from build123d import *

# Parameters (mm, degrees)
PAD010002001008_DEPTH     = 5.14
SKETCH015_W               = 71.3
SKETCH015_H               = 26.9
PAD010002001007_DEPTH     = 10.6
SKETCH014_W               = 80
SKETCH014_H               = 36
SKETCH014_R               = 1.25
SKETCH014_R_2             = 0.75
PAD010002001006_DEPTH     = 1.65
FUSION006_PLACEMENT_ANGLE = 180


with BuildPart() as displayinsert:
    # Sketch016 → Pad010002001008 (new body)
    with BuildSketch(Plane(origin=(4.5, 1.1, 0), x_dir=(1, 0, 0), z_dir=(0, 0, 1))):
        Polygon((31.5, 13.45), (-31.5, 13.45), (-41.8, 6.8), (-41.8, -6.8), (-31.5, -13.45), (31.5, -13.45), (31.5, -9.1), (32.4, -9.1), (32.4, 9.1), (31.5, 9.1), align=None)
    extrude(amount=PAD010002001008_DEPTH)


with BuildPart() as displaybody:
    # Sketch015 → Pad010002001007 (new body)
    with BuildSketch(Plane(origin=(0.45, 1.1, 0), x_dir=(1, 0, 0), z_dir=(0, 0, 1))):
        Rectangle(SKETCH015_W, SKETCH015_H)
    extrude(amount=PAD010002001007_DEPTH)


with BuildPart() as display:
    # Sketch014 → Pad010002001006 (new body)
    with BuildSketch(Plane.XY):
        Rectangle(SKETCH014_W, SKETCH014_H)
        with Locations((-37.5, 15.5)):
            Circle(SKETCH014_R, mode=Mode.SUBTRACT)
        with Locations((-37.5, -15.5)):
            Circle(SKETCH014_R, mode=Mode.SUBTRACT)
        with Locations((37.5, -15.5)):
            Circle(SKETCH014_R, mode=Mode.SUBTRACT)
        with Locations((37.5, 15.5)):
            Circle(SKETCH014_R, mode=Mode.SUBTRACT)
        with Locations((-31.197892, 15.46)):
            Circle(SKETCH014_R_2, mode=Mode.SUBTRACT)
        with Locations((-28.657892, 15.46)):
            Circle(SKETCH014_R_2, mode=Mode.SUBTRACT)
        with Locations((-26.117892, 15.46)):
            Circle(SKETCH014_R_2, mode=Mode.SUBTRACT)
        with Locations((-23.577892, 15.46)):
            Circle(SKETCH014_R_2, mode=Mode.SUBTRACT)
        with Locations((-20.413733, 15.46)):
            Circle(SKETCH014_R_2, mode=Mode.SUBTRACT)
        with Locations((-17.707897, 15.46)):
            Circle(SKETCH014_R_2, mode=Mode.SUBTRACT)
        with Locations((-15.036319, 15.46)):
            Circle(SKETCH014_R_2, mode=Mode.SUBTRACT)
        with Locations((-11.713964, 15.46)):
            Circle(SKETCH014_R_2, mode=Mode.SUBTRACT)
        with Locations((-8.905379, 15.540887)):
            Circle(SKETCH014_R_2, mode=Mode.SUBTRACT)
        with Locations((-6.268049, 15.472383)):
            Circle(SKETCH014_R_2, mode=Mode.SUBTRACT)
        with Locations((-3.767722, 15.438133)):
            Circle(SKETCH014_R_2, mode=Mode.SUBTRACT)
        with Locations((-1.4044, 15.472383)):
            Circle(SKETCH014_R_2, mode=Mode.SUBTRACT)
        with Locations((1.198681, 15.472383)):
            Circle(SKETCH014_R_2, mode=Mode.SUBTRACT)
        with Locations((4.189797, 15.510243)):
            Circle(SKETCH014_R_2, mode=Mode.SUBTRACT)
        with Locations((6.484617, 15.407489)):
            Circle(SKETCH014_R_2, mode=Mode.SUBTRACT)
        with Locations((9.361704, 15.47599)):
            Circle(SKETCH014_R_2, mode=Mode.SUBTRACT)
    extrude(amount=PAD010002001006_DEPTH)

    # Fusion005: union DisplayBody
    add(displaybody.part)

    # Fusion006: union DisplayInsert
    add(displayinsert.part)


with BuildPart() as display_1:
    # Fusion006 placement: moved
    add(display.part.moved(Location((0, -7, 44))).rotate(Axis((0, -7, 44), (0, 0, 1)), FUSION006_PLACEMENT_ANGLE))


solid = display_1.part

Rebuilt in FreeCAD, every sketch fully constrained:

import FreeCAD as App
import Part
import Sketcher

V = App.Vector

doc = App.newDocument("Part")
body = doc.addObject("PartDesign::Body", "Body")

sketch1 = body.newObject("Sketcher::SketchObject", "Sketch")
sketch1.AttachmentSupport = (doc.getObject("XY_Plane"), [""])
sketch1.MapMode = "FlatFace"
sketch1.addGeometry(Part.LineSegment(V(36, 14.6, 0), V(-27, 14.6, 0)), False)
sketch1.addGeometry(Part.LineSegment(V(-27, 14.6, 0), V(-37.3, 7.9, 0)), False)
sketch1.addGeometry(Part.LineSegment(V(-37.3, 7.9, 0), V(-37.3, -5.7, 0)), False)
sketch1.addGeometry(Part.LineSegment(V(-37.3, -5.7, 0), V(-27, -12.3, 0)), False)
sketch1.addGeometry(Part.LineSegment(V(-27, -12.3, 0), V(36, -12.3, 0)), False)
sketch1.addGeometry(Part.LineSegment(V(36, -12.3, 0), V(36, -8, 0)), False)
sketch1.addGeometry(Part.LineSegment(V(36, -8, 0), V(36.9, -8, 0)), False)
sketch1.addGeometry(Part.LineSegment(V(36.9, -8, 0), V(36.9, 10.2, 0)), False)
sketch1.addGeometry(Part.LineSegment(V(36.9, 10.2, 0), V(36, 10.2, 0)), False)
sketch1.addGeometry(Part.LineSegment(V(36, 10.2, 0), V(36, 14.6, 0)), False)
sketch1.addConstraint(Sketcher.Constraint("Coincident", 0, 2, 1, 1))
sketch1.addConstraint(Sketcher.Constraint("Coincident", 1, 2, 2, 1))
sketch1.addConstraint(Sketcher.Constraint("Coincident", 2, 2, 3, 1))
sketch1.addConstraint(Sketcher.Constraint("Coincident", 3, 2, 4, 1))
sketch1.addConstraint(Sketcher.Constraint("Coincident", 4, 2, 5, 1))
sketch1.addConstraint(Sketcher.Constraint("Coincident", 5, 2, 6, 1))
sketch1.addConstraint(Sketcher.Constraint("Coincident", 6, 2, 7, 1))
sketch1.addConstraint(Sketcher.Constraint("Coincident", 7, 2, 8, 1))
sketch1.addConstraint(Sketcher.Constraint("Coincident", 8, 2, 9, 1))
sketch1.addConstraint(Sketcher.Constraint("Coincident", 9, 2, 0, 1))
sketch1.addConstraint(Sketcher.Constraint("Horizontal", 0))
sketch1.addConstraint(Sketcher.Constraint("Vertical", 2))
sketch1.addConstraint(Sketcher.Constraint("Horizontal", 4))
sketch1.addConstraint(Sketcher.Constraint("Vertical", 5))
sketch1.addConstraint(Sketcher.Constraint("Horizontal", 6))
sketch1.addConstraint(Sketcher.Constraint("Vertical", 7))
sketch1.addConstraint(Sketcher.Constraint("Horizontal", 8))
sketch1.addConstraint(Sketcher.Constraint("Vertical", 9))
sketch1.addConstraint(Sketcher.Constraint("Vertical", 0, 2, 3, 2))
sketch1.addConstraint(Sketcher.Constraint("Vertical", 5, 2, 8, 2))
sketch1.addConstraint(Sketcher.Constraint("Equal", 5, 9))
sketch1.addConstraint(Sketcher.Constraint("Equal", 1, 3))
sketch1.addConstraint(Sketcher.Constraint("DistanceX", 0, 2, 0, 1, 63.0))
sketch1.addConstraint(Sketcher.Constraint("DistanceX", 6, 1, 6, 2, 0.9))
sketch1.addConstraint(Sketcher.Constraint("DistanceY", 2, 2, 2, 1, 13.6))
sketch1.addConstraint(Sketcher.Constraint("DistanceY", 7, 1, 7, 2, 18.2))
sketch1.addConstraint(Sketcher.Constraint("DistanceX", 0, 2, -1, 1, 27.0))
sketch1.addConstraint(Sketcher.Constraint("DistanceY", 5, 2, -1, 1, 8.0))
sketch1.addConstraint(Sketcher.Constraint("DistanceY", 5, 1, 5, 2, 4.35))
sketch1.addConstraint(Sketcher.Constraint("DistanceX", 1, 2, -1, 1, 37.3))
pad1 = body.newObject("PartDesign::Pad", "Pad")
pad1.Profile = sketch1
pad1.Length = 5.14
body2 = doc.addObject("PartDesign::Body", "Body001")

sketch2 = body2.newObject("Sketcher::SketchObject", "Sketch001")
sketch2.AttachmentSupport = (doc.getObject("XY_Plane001"), [""])
sketch2.MapMode = "FlatFace"
sketch2.addGeometry(Part.LineSegment(V(-35, 15, 0), V(-35, -12, 0)), False)
sketch2.addGeometry(Part.LineSegment(V(-35, -12, 0), V(36, -12, 0)), False)
sketch2.addGeometry(Part.LineSegment(V(36, -12, 0), V(36, 15, 0)), False)
sketch2.addGeometry(Part.LineSegment(V(36, 15, 0), V(-35, 15, 0)), False)
sketch2.addConstraint(Sketcher.Constraint("Coincident", 0, 2, 1, 1))
sketch2.addConstraint(Sketcher.Constraint("Coincident", 1, 2, 2, 1))
sketch2.addConstraint(Sketcher.Constraint("Coincident", 2, 2, 3, 1))
sketch2.addConstraint(Sketcher.Constraint("Coincident", 3, 2, 0, 1))
sketch2.addConstraint(Sketcher.Constraint("Vertical", 0))
sketch2.addConstraint(Sketcher.Constraint("Horizontal", 1))
sketch2.addConstraint(Sketcher.Constraint("Vertical", 2))
sketch2.addConstraint(Sketcher.Constraint("Horizontal", 3))
sketch2.addConstraint(Sketcher.Constraint("DistanceX", 1, 1, 1, 2, 71.3))
sketch2.addConstraint(Sketcher.Constraint("DistanceY", 0, 2, 0, 1, 26.9))
sketch2.addConstraint(Sketcher.Constraint("DistanceX", 0, 2, -1, 1, 35.2))
sketch2.addConstraint(Sketcher.Constraint("DistanceY", 0, 2, -1, 1, 12.35))
pad2 = body2.newObject("PartDesign::Pad", "Pad001")
pad2.Profile = sketch2
pad2.Length = 10.6
body3 = doc.addObject("PartDesign::Body", "Body002")

sketch3 = body3.newObject("Sketcher::SketchObject", "Sketch002")
sketch3.AttachmentSupport = (doc.getObject("XY_Plane002"), [""])
sketch3.MapMode = "FlatFace"
sketch3.addGeometry(Part.LineSegment(V(-40, 18, 0), V(-40, -18, 0)), False)
sketch3.addGeometry(Part.LineSegment(V(-40, -18, 0), V(40, -18, 0)), False)
sketch3.addGeometry(Part.LineSegment(V(40, -18, 0), V(40, 18, 0)), False)
sketch3.addGeometry(Part.LineSegment(V(40, 18, 0), V(-40, 18, 0)), False)
sketch3.addGeometry(Part.Circle(V(-37.5, -15.5, 0), V(0, 0, 1), 1.2), False)
sketch3.addGeometry(Part.Circle(V(37.5, -15.5, 0), V(0, 0, 1), 1.2), False)
sketch3.addGeometry(Part.Circle(V(-37.5, 15.5, 0), V(0, 0, 1), 1.2), False)
sketch3.addGeometry(Part.Circle(V(-31.2, 15.5, 0), V(0, 0, 1), 0.8), False)
sketch3.addGeometry(Part.Circle(V(-28.7, 15.5, 0), V(0, 0, 1), 0.8), False)
sketch3.addGeometry(Part.Circle(V(-26.1, 15.5, 0), V(0, 0, 1), 0.8), False)
sketch3.addGeometry(Part.Circle(V(-23.6, 15.5, 0), V(0, 0, 1), 0.8), False)
sketch3.addGeometry(Part.Circle(V(-20.4, 15.5, 0), V(0, 0, 1), 0.8), False)
sketch3.addGeometry(Part.Circle(V(-17.7, 15.5, 0), V(0, 0, 1), 0.8), False)
sketch3.addGeometry(Part.Circle(V(-15, 15.5, 0), V(0, 0, 1), 0.8), False)
sketch3.addGeometry(Part.Circle(V(-11.7, 15.5, 0), V(0, 0, 1), 0.8), False)
sketch3.addGeometry(Part.Circle(V(-8.9, 15.5, 0), V(0, 0, 1), 0.8), False)
sketch3.addGeometry(Part.Circle(V(-6.3, 15.5, 0), V(0, 0, 1), 0.8), False)
sketch3.addGeometry(Part.Circle(V(-3.8, 15.4, 0), V(0, 0, 1), 0.8), False)
sketch3.addGeometry(Part.Circle(V(-1.4, 15.5, 0), V(0, 0, 1), 0.8), False)
sketch3.addGeometry(Part.Circle(V(1.2, 15.5, 0), V(0, 0, 1), 0.8), False)
sketch3.addGeometry(Part.Circle(V(4.2, 15.5, 0), V(0, 0, 1), 0.8), False)
sketch3.addGeometry(Part.Circle(V(6.5, 15.4, 0), V(0, 0, 1), 0.8), False)
sketch3.addGeometry(Part.Circle(V(9.4, 15.5, 0), V(0, 0, 1), 0.8), False)
sketch3.addGeometry(Part.Circle(V(37.5, 15.5, 0), V(0, 0, 1), 1.2), False)
sketch3.addConstraint(Sketcher.Constraint("Coincident", 0, 2, 1, 1))
sketch3.addConstraint(Sketcher.Constraint("Coincident", 1, 2, 2, 1))
sketch3.addConstraint(Sketcher.Constraint("Coincident", 2, 2, 3, 1))
sketch3.addConstraint(Sketcher.Constraint("Coincident", 3, 2, 0, 1))
sketch3.addConstraint(Sketcher.Constraint("Vertical", 0))
sketch3.addConstraint(Sketcher.Constraint("Horizontal", 1))
sketch3.addConstraint(Sketcher.Constraint("Vertical", 2))
sketch3.addConstraint(Sketcher.Constraint("Horizontal", 3))
sketch3.addConstraint(Sketcher.Constraint("Equal", 4, 5))
sketch3.addConstraint(Sketcher.Constraint("Equal", 5, 6))
sketch3.addConstraint(Sketcher.Constraint("Equal", 7, 8))
sketch3.addConstraint(Sketcher.Constraint("Equal", 8, 9))
sketch3.addConstraint(Sketcher.Constraint("Equal", 9, 10))
sketch3.addConstraint(Sketcher.Constraint("Equal", 10, 11))
sketch3.addConstraint(Sketcher.Constraint("Equal", 11, 12))
sketch3.addConstraint(Sketcher.Constraint("Equal", 12, 13))
sketch3.addConstraint(Sketcher.Constraint("Equal", 13, 14))
sketch3.addConstraint(Sketcher.Constraint("Equal", 14, 15))
sketch3.addConstraint(Sketcher.Constraint("Equal", 15, 16))
sketch3.addConstraint(Sketcher.Constraint("Equal", 16, 17))
sketch3.addConstraint(Sketcher.Constraint("Equal", 17, 18))
sketch3.addConstraint(Sketcher.Constraint("Equal", 18, 19))
sketch3.addConstraint(Sketcher.Constraint("Equal", 19, 20))
sketch3.addConstraint(Sketcher.Constraint("Equal", 20, 21))
sketch3.addConstraint(Sketcher.Constraint("Equal", 21, 22))
sketch3.addConstraint(Sketcher.Constraint("Equal", 6, 23))
sketch3.addConstraint(Sketcher.Constraint("Symmetric", 5, 3, 6, 3, -1, 1))
sketch3.addConstraint(Sketcher.Constraint("Symmetric", 4, 3, 23, 3, -1, 1))
sketch3.addConstraint(Sketcher.Constraint("Symmetric", 0, 2, 2, 2, -1, 1))
sketch3.addConstraint(Sketcher.Constraint("Symmetric", 4, 3, 5, 3, -2))
sketch3.addConstraint(Sketcher.Constraint("Horizontal", 7, 3, 8, 3))
sketch3.addConstraint(Sketcher.Constraint("Horizontal", 8, 3, 9, 3))
sketch3.addConstraint(Sketcher.Constraint("Horizontal", 9, 3, 10, 3))
sketch3.addConstraint(Sketcher.Constraint("Horizontal", 10, 3, 11, 3))
sketch3.addConstraint(Sketcher.Constraint("Horizontal", 11, 3, 12, 3))
sketch3.addConstraint(Sketcher.Constraint("Horizontal", 12, 3, 13, 3))
sketch3.addConstraint(Sketcher.Constraint("Horizontal", 13, 3, 14, 3))
sketch3.addConstraint(Sketcher.Constraint("Horizontal", 16, 3, 18, 3))
sketch3.addConstraint(Sketcher.Constraint("Horizontal", 18, 3, 19, 3))
sketch3.addConstraint(Sketcher.Constraint("Diameter", 4, 2.5))
sketch3.addConstraint(Sketcher.Constraint("Diameter", 7, 1.5))
sketch3.addConstraint(Sketcher.Constraint("DistanceX", 1, 1, 1, 2, 80.0))
sketch3.addConstraint(Sketcher.Constraint("DistanceY", 0, 2, 0, 1, 36.0))
sketch3.addConstraint(Sketcher.Constraint("DistanceX", 4, 3, 5, 3, 75.0))
sketch3.addConstraint(Sketcher.Constraint("DistanceY", 4, 3, 6, 3, 31.0))
sketch3.addConstraint(Sketcher.Constraint("DistanceY", -1, 1, 7, 3, 15.46))
sketch3.addConstraint(Sketcher.Constraint("DistanceX", 7, 3, 8, 3, 2.54))
sketch3.addConstraint(Sketcher.Constraint("DistanceX", 8, 3, 9, 3, 2.54))
sketch3.addConstraint(Sketcher.Constraint("DistanceX", 9, 3, 10, 3, 2.54))
sketch3.addConstraint(Sketcher.Constraint("DistanceX", 18, 3, -1, 1, 1.4044))
sketch3.addConstraint(Sketcher.Constraint("DistanceY", 21, 3, 22, 3, 0.068501))
sketch3.addConstraint(Sketcher.Constraint("DistanceX", 7, 3, -1, 1, 31.197892))
sketch3.addConstraint(Sketcher.Constraint("DistanceX", 13, 3, -1, 1, 15.036319))
sketch3.addConstraint(Sketcher.Constraint("DistanceX", 15, 3, -1, 1, 8.905379))
sketch3.addConstraint(Sketcher.Constraint("DistanceX", 16, 3, -1, 1, 6.268049))
sketch3.addConstraint(Sketcher.Constraint("DistanceX", 17, 3, -1, 1, 3.767722))
sketch3.addConstraint(Sketcher.Constraint("DistanceX", -1, 1, 19, 3, 1.198681))
sketch3.addConstraint(Sketcher.Constraint("DistanceY", -1, 1, 21, 3, 15.407489))
sketch3.addConstraint(Sketcher.Constraint("DistanceX", 10, 3, 11, 3, 3.164159))
sketch3.addConstraint(Sketcher.Constraint("DistanceX", 11, 3, 14, 3, 8.699769))
sketch3.addConstraint(Sketcher.Constraint("DistanceY", 17, 3, 16, 3, 0.03425))
sketch3.addConstraint(Sketcher.Constraint("DistanceY", 19, 3, 20, 3, 0.03786))
sketch3.addConstraint(Sketcher.Constraint("DistanceX", 17, 3, 20, 3, 7.957519))
sketch3.addConstraint(Sketcher.Constraint("DistanceX", 20, 3, 21, 3, 2.29482))
sketch3.addConstraint(Sketcher.Constraint("DistanceX", 12, 3, -1, 1, 17.707897))
sketch3.addConstraint(Sketcher.Constraint("DistanceY", -1, 1, 15, 3, 15.540887))
sketch3.addConstraint(Sketcher.Constraint("DistanceY", -1, 1, 16, 3, 15.472383))
sketch3.addConstraint(Sketcher.Constraint("DistanceX", -1, 1, 22, 3, 9.361704))
pad3 = body3.newObject("PartDesign::Pad", "Pad002")
pad3.Profile = sketch3
pad3.Length = 1.65
doc.recompute()

boolean = body3.newObject("PartDesign::Boolean", "Boolean")
boolean.Type = "Fuse"
boolean.addObjects([body2])
doc.recompute()

boolean2 = body3.newObject("PartDesign::Boolean", "Boolean001")
boolean2.Type = "Fuse"
boolean2.addObjects([body])
body4 = doc.addObject("PartDesign::Body", "Body003")
doc.recompute()

body3.Placement = App.Placement(V(0, -7, 44), App.Rotation(V(0, 0, 1), 180))
boolean3 = body4.newObject("PartDesign::Boolean", "Boolean002")
boolean3.Type = "Fuse"
boolean3.addObjects([body3])

doc.recompute()
